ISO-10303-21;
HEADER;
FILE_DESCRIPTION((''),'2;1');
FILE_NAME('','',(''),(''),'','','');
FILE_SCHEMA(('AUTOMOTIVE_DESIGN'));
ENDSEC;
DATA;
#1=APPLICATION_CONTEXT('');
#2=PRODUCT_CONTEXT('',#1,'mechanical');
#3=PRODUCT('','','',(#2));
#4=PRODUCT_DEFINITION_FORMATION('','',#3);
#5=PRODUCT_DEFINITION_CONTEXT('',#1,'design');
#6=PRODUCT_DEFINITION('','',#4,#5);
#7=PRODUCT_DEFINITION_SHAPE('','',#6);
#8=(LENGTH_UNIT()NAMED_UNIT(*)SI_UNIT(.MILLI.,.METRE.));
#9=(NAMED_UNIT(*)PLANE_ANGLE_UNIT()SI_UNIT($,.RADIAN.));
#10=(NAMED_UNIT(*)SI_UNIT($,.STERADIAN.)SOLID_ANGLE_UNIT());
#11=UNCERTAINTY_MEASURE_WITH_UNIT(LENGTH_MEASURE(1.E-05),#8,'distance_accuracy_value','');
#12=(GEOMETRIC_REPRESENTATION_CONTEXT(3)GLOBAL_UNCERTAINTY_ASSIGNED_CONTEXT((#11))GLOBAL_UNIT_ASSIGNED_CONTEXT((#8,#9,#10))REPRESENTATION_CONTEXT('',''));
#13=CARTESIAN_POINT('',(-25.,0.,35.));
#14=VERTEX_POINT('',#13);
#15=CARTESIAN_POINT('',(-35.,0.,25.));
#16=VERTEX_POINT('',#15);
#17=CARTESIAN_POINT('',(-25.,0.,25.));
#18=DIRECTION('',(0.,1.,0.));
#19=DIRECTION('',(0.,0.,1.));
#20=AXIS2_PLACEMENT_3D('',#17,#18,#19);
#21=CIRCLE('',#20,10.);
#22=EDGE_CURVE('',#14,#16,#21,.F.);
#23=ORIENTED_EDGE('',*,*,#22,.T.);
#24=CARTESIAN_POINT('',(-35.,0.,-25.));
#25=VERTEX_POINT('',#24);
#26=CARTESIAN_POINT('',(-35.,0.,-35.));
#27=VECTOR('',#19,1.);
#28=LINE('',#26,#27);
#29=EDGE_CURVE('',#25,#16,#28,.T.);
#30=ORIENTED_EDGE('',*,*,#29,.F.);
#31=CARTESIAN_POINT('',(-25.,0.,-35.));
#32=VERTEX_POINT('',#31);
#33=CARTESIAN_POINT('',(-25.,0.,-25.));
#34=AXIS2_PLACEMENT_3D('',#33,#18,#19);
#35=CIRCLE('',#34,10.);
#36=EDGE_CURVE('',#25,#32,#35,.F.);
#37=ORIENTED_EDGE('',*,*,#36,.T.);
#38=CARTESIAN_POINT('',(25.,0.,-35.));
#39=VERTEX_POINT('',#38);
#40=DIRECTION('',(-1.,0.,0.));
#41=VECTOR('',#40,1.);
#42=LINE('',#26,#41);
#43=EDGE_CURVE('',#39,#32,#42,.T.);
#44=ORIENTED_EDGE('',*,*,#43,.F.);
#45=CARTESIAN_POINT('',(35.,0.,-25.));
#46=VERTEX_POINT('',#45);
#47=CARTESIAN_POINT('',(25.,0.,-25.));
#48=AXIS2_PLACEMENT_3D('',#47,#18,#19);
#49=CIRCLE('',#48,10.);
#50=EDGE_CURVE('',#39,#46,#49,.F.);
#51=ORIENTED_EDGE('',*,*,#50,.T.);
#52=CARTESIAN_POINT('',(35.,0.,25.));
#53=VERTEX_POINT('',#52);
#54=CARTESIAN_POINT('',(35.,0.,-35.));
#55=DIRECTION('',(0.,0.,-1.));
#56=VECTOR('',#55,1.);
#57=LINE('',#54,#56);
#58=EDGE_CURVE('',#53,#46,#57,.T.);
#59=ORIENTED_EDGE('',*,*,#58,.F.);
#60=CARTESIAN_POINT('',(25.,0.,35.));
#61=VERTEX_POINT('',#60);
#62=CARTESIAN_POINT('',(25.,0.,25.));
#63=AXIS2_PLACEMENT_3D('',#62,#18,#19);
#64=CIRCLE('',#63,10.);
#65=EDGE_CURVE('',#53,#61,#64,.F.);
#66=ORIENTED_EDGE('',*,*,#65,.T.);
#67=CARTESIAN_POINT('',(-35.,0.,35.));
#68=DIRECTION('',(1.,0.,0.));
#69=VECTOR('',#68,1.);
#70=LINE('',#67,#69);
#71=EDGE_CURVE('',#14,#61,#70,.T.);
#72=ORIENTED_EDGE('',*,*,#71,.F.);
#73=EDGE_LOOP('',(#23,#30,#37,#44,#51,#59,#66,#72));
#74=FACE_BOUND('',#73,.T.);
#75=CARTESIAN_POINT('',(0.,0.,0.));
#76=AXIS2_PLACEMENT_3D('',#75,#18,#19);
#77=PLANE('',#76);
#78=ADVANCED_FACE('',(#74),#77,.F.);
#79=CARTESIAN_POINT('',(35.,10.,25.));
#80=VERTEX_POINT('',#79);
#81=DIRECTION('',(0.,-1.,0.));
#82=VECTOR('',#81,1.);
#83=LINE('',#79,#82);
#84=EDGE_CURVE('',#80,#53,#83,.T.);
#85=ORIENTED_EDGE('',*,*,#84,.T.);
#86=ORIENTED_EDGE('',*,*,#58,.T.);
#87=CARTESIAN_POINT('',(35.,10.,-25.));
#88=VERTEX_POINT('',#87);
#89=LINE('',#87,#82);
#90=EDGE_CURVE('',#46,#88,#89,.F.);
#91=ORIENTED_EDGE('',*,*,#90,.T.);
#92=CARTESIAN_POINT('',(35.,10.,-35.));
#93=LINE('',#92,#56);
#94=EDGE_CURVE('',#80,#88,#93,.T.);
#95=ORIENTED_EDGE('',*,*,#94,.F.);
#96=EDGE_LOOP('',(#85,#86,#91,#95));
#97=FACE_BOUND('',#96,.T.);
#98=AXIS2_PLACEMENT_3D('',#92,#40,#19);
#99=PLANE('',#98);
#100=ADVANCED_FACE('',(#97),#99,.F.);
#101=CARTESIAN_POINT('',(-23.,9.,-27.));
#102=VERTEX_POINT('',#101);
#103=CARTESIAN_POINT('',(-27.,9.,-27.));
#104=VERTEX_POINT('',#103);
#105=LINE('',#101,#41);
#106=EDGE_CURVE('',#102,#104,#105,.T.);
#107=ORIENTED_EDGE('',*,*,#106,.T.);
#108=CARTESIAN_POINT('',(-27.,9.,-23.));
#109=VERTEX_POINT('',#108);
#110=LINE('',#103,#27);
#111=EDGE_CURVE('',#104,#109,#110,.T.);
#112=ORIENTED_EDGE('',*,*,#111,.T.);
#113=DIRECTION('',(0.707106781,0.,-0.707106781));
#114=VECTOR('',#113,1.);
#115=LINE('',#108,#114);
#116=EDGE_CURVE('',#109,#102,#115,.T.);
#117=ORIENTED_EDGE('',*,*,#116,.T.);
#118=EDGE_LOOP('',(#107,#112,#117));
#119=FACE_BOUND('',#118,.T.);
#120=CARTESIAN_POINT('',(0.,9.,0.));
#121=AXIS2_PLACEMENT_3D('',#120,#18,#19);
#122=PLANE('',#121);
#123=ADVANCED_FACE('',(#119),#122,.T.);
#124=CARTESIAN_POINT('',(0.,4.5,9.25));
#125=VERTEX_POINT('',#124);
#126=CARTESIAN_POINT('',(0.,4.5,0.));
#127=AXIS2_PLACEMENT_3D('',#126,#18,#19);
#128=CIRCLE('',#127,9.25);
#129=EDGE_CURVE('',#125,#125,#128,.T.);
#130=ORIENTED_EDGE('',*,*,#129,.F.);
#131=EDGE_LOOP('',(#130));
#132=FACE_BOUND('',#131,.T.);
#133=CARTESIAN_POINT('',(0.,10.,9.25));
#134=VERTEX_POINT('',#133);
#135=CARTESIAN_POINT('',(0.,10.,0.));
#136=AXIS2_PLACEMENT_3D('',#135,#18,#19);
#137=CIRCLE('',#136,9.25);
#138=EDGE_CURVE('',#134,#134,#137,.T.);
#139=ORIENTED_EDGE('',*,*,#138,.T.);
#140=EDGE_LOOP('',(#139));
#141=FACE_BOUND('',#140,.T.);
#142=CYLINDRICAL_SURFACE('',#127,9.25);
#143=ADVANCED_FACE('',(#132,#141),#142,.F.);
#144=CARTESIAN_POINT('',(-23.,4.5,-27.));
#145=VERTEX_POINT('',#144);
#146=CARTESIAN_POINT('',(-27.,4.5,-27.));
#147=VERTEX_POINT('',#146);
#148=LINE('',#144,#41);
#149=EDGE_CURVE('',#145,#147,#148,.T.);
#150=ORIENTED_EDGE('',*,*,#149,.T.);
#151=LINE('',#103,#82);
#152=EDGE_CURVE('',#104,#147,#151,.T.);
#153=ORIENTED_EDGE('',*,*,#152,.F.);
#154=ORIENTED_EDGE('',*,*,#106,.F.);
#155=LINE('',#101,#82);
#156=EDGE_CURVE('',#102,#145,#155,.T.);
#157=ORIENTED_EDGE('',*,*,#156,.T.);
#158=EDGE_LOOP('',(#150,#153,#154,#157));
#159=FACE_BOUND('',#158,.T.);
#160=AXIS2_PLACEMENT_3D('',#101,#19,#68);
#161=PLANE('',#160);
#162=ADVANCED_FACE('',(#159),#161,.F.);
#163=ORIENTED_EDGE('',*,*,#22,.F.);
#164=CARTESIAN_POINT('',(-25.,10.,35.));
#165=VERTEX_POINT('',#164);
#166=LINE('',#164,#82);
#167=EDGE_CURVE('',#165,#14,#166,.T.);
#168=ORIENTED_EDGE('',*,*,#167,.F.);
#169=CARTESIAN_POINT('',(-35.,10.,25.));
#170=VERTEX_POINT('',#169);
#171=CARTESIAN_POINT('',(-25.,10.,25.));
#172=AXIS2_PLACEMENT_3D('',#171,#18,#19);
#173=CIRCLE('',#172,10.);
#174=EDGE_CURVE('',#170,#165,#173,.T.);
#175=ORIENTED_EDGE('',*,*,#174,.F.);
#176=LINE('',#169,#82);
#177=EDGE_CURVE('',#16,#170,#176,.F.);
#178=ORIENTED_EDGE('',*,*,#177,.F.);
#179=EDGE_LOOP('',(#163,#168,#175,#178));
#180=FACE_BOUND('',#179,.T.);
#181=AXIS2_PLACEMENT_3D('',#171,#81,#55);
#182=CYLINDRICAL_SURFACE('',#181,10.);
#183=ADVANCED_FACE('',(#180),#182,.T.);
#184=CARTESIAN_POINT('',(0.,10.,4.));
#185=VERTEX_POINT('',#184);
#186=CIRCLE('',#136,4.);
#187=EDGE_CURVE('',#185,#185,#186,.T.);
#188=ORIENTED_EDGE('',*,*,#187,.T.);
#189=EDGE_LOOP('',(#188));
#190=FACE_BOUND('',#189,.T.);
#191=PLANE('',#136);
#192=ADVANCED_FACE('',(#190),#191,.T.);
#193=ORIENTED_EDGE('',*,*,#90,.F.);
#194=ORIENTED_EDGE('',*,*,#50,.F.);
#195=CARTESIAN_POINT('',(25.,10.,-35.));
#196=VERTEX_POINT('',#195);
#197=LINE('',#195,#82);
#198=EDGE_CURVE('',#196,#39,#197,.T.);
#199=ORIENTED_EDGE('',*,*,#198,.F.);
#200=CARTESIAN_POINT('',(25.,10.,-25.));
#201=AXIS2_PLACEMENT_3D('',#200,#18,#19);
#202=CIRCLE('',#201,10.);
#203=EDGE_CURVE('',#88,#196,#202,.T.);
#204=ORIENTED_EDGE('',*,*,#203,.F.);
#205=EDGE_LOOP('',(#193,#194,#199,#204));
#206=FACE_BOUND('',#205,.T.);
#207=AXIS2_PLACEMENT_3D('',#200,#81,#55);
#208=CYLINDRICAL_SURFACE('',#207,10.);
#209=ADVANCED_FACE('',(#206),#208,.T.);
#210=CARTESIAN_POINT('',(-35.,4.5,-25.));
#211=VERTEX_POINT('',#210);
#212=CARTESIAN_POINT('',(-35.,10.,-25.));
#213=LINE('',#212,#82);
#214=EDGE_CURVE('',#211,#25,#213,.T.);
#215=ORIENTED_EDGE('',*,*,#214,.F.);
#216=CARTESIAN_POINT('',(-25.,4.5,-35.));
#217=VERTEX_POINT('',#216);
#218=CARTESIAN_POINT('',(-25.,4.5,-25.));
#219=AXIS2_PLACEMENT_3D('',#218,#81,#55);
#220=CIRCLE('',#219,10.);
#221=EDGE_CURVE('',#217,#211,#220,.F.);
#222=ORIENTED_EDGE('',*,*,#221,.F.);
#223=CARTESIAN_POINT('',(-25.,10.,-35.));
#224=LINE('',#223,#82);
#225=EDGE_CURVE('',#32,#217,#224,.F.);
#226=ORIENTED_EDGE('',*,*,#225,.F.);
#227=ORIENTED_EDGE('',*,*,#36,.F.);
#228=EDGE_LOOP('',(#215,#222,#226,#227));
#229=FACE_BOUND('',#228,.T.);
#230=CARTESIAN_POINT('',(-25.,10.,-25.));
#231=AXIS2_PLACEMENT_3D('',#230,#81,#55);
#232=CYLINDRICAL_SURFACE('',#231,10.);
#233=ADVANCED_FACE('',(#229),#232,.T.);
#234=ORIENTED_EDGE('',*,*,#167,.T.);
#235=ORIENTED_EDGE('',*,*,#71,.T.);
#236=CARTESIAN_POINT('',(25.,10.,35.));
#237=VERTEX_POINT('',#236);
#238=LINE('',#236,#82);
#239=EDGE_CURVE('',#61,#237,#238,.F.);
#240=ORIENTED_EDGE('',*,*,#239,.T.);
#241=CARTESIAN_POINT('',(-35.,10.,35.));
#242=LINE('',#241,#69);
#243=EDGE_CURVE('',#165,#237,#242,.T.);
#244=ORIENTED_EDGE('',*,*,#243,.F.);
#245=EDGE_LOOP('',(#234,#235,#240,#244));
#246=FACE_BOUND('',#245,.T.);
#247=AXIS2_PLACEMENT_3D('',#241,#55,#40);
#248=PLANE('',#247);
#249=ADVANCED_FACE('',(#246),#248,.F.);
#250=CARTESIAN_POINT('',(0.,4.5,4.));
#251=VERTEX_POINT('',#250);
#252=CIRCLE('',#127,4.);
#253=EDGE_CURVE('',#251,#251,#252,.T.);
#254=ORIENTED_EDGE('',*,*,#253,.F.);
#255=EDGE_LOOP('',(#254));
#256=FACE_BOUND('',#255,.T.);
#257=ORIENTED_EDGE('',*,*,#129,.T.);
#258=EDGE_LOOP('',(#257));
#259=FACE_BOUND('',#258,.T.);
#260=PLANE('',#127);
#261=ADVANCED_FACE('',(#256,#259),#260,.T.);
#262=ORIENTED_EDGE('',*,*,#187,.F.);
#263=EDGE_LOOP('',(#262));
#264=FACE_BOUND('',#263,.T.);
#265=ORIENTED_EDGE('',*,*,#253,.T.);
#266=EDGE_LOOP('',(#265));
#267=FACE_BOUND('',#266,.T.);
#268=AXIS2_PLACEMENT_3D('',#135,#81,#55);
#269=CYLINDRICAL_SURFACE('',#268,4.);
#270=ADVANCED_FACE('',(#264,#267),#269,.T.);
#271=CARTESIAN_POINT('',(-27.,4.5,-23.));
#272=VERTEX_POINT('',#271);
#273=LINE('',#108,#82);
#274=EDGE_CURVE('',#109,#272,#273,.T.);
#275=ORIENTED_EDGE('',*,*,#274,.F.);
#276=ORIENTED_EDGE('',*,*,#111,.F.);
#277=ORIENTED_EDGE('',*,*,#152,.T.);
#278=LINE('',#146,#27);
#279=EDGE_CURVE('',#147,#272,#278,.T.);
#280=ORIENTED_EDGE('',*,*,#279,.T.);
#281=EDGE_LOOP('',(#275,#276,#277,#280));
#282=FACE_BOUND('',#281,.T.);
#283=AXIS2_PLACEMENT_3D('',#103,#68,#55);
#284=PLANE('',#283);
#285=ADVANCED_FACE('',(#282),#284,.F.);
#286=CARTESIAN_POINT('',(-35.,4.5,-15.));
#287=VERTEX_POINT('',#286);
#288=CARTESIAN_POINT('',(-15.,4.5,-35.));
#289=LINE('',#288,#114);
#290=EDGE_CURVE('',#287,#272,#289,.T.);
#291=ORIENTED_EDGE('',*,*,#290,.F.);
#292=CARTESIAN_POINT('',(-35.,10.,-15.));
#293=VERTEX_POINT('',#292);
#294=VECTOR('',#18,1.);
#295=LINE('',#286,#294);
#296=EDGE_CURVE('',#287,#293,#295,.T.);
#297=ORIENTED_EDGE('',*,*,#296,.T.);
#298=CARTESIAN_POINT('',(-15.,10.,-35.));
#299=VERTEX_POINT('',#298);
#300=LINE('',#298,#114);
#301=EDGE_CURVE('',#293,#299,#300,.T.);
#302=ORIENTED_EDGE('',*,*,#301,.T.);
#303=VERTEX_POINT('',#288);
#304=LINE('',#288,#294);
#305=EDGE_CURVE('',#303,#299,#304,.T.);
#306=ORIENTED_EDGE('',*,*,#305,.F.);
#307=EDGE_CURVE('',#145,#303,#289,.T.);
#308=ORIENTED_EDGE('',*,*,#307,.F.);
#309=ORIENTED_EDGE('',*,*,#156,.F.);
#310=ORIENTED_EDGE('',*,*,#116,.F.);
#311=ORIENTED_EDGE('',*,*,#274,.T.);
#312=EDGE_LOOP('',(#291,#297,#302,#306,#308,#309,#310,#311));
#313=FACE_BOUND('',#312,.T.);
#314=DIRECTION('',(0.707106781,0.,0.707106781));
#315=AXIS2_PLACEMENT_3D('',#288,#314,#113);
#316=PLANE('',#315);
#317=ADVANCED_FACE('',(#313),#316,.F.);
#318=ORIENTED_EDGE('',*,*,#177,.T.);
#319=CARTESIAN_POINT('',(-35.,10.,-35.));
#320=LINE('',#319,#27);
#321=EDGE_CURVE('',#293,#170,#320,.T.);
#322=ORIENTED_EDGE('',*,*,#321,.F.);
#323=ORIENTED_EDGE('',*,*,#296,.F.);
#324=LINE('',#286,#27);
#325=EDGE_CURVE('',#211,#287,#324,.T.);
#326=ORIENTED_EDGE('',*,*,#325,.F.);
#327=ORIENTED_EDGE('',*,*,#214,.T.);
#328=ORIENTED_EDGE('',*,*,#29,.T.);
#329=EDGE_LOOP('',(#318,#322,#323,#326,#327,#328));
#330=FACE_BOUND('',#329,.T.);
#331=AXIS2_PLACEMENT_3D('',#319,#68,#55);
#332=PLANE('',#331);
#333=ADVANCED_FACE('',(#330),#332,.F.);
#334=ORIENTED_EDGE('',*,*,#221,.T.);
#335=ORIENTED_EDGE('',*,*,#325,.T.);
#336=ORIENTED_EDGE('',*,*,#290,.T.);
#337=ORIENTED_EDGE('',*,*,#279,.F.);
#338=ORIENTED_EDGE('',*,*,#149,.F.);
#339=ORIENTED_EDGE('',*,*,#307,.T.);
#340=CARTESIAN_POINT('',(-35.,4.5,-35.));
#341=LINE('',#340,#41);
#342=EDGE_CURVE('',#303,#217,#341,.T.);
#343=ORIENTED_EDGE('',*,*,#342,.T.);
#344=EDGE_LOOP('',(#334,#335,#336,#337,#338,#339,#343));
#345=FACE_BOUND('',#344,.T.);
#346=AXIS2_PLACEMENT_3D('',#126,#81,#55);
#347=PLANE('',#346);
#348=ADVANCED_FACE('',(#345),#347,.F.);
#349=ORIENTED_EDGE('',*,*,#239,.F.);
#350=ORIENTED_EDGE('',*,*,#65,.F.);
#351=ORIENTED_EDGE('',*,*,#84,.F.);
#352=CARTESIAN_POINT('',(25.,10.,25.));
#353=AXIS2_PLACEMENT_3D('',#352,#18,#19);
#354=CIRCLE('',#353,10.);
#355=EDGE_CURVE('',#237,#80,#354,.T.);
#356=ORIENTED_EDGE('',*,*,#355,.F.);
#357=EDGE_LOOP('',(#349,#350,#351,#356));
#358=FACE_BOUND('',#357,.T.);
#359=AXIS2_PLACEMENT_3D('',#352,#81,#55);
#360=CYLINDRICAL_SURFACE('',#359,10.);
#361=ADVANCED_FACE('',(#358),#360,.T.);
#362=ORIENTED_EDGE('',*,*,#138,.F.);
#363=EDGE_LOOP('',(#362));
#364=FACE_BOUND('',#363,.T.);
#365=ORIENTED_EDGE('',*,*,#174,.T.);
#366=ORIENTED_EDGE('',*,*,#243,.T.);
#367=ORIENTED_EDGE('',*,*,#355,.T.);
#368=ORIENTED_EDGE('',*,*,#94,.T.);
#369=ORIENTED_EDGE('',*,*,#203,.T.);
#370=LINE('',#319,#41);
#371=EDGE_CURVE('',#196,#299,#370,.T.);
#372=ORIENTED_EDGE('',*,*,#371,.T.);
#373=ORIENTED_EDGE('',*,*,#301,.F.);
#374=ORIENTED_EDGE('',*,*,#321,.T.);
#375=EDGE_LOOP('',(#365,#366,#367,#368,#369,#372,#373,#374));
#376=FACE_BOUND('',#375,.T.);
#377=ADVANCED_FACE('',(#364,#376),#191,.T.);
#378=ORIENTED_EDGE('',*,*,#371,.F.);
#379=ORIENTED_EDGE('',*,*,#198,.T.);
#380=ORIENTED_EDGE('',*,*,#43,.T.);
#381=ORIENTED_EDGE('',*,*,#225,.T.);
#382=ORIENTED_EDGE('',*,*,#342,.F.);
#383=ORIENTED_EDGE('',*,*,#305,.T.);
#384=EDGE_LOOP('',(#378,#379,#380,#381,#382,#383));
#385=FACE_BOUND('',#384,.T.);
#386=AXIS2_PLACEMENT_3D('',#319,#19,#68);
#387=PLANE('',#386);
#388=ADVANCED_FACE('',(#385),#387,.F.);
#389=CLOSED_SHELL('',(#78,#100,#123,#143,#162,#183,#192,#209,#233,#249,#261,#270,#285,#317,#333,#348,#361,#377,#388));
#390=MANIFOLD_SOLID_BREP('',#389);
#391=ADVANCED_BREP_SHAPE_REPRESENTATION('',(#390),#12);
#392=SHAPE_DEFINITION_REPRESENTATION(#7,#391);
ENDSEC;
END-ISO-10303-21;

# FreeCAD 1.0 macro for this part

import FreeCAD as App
import Part
import Sketcher


def edges_at(feature, points):
    """Names of the edges that pass closest to the given points."""
    edges = feature.Shape.Edges
    near = lambda p: min(range(len(edges)), key=lambda i: edges[i].distToShape(Part.Vertex(*p))[0])
    return sorted({f"Edge{near(p) + 1}" for p in points})

doc = App.newDocument("Part")
params = doc.addObject("Spreadsheet::Sheet", "Params")
for row, (alias, value) in enumerate([
    ("sketch1_width", "70 mm"),
    ("pad1_length", "10 mm"),
    ("sketch2_diameter", "18.5 mm"),
    ("pocket1_length", "5.5 mm"),
    ("sketch3_diameter", "8 mm"),
    ("pad2_length", "5.5 mm"),
    ("sketch4_width", "20 mm"),
    ("pocket2_length", "5.5 mm"),
    ("sketch5_width", "4 mm"),
    ("pad3_length", "4.5 mm"),
    ("fillet_radius", "10 mm"),
], start=1):
    params.set(f"A{row}", alias)
    params.set(f"B{row}", "=" + value)
    params.setAlias(f"B{row}", alias)

body = doc.addObject("PartDesign::Body", "Body")

# Sketch on XZ plane
sketch1 = doc.addObject("Sketcher::SketchObject", "Sketch")
body.addObject(sketch1)
sketch1.AttachmentSupport = (doc.XZ_Plane, [""])
sketch1.MapMode = "FlatFace"
sketch1.addGeometry([
    Part.LineSegment(App.Vector(-35, -35, 0), App.Vector(-35, 35, 0)),
    Part.LineSegment(App.Vector(-35, 35, 0), App.Vector(35, 35, 0)),
    Part.LineSegment(App.Vector(35, 35, 0), App.Vector(35, -35, 0)),
    Part.LineSegment(App.Vector(35, -35, 0), App.Vector(-35, -35, 0)),
], False)
sketch1.addConstraint([
    Sketcher.Constraint("Coincident", 0, 2, 1, 1),
    Sketcher.Constraint("Coincident", 1, 2, 2, 1),
    Sketcher.Constraint("Coincident", 2, 2, 3, 1),
    Sketcher.Constraint("Coincident", 3, 2, 0, 1),
    Sketcher.Constraint("Vertical", 0),
    Sketcher.Constraint("Horizontal", 1),
    Sketcher.Constraint("Vertical", 2),
    Sketcher.Constraint("Horizontal", 3),
    Sketcher.Constraint("Symmetric", 0, 2, 2, 2, -1, 1),
    Sketcher.Constraint("Equal", 3, 0),
    Sketcher.Constraint("DistanceX", 1, 1, 1, 2, 70.0),
])
sketch1.setExpression("Constraints[10]", "Params.sketch1_width")
pad1 = doc.addObject("PartDesign::Pad", "Pad")
body.addObject(pad1)
pad1.Profile = sketch1
pad1.setExpression("Length", "Params.pad1_length")
pad1.Reversed = True

# Sketch on XZ plane
sketch2 = doc.addObject("Sketcher::SketchObject", "Sketch001")
body.addObject(sketch2)
sketch2.AttachmentSupport = (doc.XZ_Plane, [""])
sketch2.MapMode = "FlatFace"
sketch2.AttachmentOffset = App.Placement(App.Vector(0, 0, -10), App.Rotation())
sketch2.addGeometry(Part.Circle(App.Vector(0, 0, 0), App.Vector(0, 0, 1), 9.25), False)
sketch2.addConstraint([
    Sketcher.Constraint("Coincident", 0, 3, -1, 1),
    Sketcher.Constraint("Diameter", 0, 18.5),
])
sketch2.setExpression("Constraints[1]", "Params.sketch2_diameter")
pocket1 = doc.addObject("PartDesign::Pocket", "Pocket")
body.addObject(pocket1)
pocket1.Profile = sketch2
pocket1.setExpression("Length", "Params.pocket1_length")
pocket1.Reversed = True

# Sketch on XZ plane
sketch3 = doc.addObject("Sketcher::SketchObject", "Sketch002")
body.addObject(sketch3)
sketch3.AttachmentSupport = (doc.XZ_Plane, [""])
sketch3.MapMode = "FlatFace"
sketch3.AttachmentOffset = App.Placement(App.Vector(0, 0, -4.5), App.Rotation())
sketch3.addGeometry(Part.Circle(App.Vector(0, 0, 0), App.Vector(0, 0, 1), 4), False)
sketch3.addConstraint([
    Sketcher.Constraint("Coincident", 0, 3, -1, 1),
    Sketcher.Constraint("Diameter", 0, 8.0),
])
sketch3.setExpression("Constraints[1]", "Params.sketch3_diameter")
pad2 = doc.addObject("PartDesign::Pad", "Pad001")
body.addObject(pad2)
pad2.Profile = sketch3
pad2.setExpression("Length", "Params.pad2_length")
pad2.Reversed = True

# Sketch on XZ plane
sketch4 = doc.addObject("Sketcher::SketchObject", "Sketch003")
body.addObject(sketch4)
sketch4.AttachmentSupport = (doc.XZ_Plane, [""])
sketch4.MapMode = "FlatFace"
sketch4.AttachmentOffset = App.Placement(App.Vector(0, 0, -10), App.Rotation())
sketch4.addGeometry([
    Part.LineSegment(App.Vector(-15, -35, 0), App.Vector(-35, -35, 0)),
    Part.LineSegment(App.Vector(-35, -35, 0), App.Vector(-35, -15, 0)),
    Part.LineSegment(App.Vector(-35, -15, 0), App.Vector(-15, -35, 0)),
], False)
sketch4.addConstraint([
    Sketcher.Constraint("Coincident", 0, 2, 1, 1),
    Sketcher.Constraint("Coincident", 1, 2, 2, 1),
    Sketcher.Constraint("Coincident", 2, 2, 0, 1),
    Sketcher.Constraint("Horizontal", 0),
    Sketcher.Constraint("Vertical", 1),
    Sketcher.Constraint("Equal", 0, 1),
    Sketcher.Constraint("DistanceX", 0, 2, 0, 1, 20.0),
    Sketcher.Constraint("DistanceX", 0, 2, -1, 1, 35.0),
    Sketcher.Constraint("DistanceY", 0, 2, -1, 1, 35.0),
])
sketch4.setExpression("Constraints[6]", "Params.sketch4_width")
pocket2 = doc.addObject("PartDesign::Pocket", "Pocket001")
body.addObject(pocket2)
pocket2.Profile = sketch4
pocket2.setExpression("Length", "Params.pocket2_length")
pocket2.Reversed = True

# Sketch on XZ plane
sketch5 = doc.addObject("Sketcher::SketchObject", "Sketch004")
body.addObject(sketch5)
sketch5.AttachmentSupport = (doc.XZ_Plane, [""])
sketch5.MapMode = "FlatFace"
sketch5.AttachmentOffset = App.Placement(App.Vector(0, 0, -4.5), App.Rotation())
sketch5.addGeometry([
    Part.LineSegment(App.Vector(-23, -27, 0), App.Vector(-27, -27, 0)),
    Part.LineSegment(App.Vector(-27, -27, 0), App.Vector(-27, -23, 0)),
    Part.LineSegment(App.Vector(-27, -23, 0), App.Vector(-23, -27, 0)),
], False)
sketch5.addConstraint([
    Sketcher.Constraint("Coincident", 0, 2, 1, 1),
    Sketcher.Constraint("Coincident", 1, 2, 2, 1),
    Sketcher.Constraint("Coincident", 2, 2, 0, 1),
    Sketcher.Constraint("Horizontal", 0),
    Sketcher.Constraint("Vertical", 1),
    Sketcher.Constraint("Equal", 0, 1),
    Sketcher.Constraint("DistanceX", 0, 2, 0, 1, 4.0),
    Sketcher.Constraint("DistanceX", 0, 2, -1, 1, 27.0),
    Sketcher.Constraint("DistanceY", 0, 2, -1, 1, 27.0),
])
sketch5.setExpression("Constraints[6]", "Params.sketch5_width")
pad3 = doc.addObject("PartDesign::Pad", "Pad002")
body.addObject(pad3)
pad3.Profile = sketch5
pad3.setExpression("Length", "Params.pad3_length")
pad3.Reversed = True
doc.recompute()

fillet = doc.addObject("PartDesign::Fillet", "Fillet")
body.addObject(fillet)
fillet.Base = (pad3, edges_at(pad3, [
    (-35, 2.25, -35),
    (35, 5, 35),
    (-35, 5, 35),
    (35, 5, -35),
]))
fillet.setExpression("Radius", "Params.fillet_radius")

doc.recompute()
